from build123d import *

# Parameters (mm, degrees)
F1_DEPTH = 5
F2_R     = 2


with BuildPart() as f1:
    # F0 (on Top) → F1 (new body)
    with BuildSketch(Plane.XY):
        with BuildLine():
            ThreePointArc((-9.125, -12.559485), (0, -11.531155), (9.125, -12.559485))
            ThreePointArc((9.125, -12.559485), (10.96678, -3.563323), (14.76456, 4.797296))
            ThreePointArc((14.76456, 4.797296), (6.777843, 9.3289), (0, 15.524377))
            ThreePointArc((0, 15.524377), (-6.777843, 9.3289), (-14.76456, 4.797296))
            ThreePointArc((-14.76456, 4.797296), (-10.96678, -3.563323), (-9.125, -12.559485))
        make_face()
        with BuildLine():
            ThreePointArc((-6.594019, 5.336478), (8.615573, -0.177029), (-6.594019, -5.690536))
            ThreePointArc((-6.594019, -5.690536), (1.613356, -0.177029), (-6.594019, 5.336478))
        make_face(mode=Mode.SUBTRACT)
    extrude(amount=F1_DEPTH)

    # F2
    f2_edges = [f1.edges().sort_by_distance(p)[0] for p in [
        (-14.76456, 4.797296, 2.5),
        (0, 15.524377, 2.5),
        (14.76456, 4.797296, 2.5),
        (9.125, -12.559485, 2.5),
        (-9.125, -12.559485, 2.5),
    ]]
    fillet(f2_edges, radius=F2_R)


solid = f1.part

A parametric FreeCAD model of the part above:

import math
import FreeCAD as App
import Part
import Sketcher


def edges_at(feature, points):
    """Names of the edges that pass closest to the given points."""
    edges = feature.Shape.Edges
    near = lambda p: min(range(len(edges)), key=lambda i: edges[i].distToShape(Part.Vertex(*p))[0])
    return sorted({f"Edge{near(p) + 1}" for p in points})

doc = App.newDocument("Part")
body = doc.addObject("PartDesign::Body", "Body")

sketch1 = body.newObject("Sketcher::SketchObject", "Sketch")
sketch1.AttachmentSupport = (doc.getObject("XY_Plane"), [""])
sketch1.MapMode = "FlatFace"
sketch1.addGeometry([
    Part.ArcOfCircle(Part.Circle(App.Vector(0, -53, 0), App.Vector(0, 0, 1), 41), math.radians(77), math.radians(103)),
    Part.ArcOfCircle(Part.Circle(App.Vector(50, -16, 0), App.Vector(0, 0, 1), 41), math.radians(149), math.radians(175)),
    Part.ArcOfCircle(Part.Circle(App.Vector(31, 42, 0), App.Vector(0, 0, 1), 41), math.radians(-139), math.radians(-113)),
    Part.ArcOfCircle(Part.Circle(App.Vector(-31, 42, 0), App.Vector(0, 0, 1), 41), math.radians(-67), math.radians(-41)),
    Part.ArcOfCircle(Part.Circle(App.Vector(-50, -16, 0), App.Vector(0, 0, 1), 41), math.radians(5), math.radians(31)),
    Part.ArcOfCircle(Part.Circle(App.Vector(-4, 0, 0), App.Vector(0, 0, 1), 6), math.radians(-112), math.radians(112)),
    Part.ArcOfCircle(Part.Circle(App.Vector(0, 0, 0), App.Vector(0, 0, 1), 9), math.radians(-140), math.radians(140)),
], False)
sketch1.addConstraint([
    Sketcher.Constraint("Coincident", 0, 1, 1, 2),
    Sketcher.Constraint("Coincident", 1, 1, 2, 2),
    Sketcher.Constraint("Coincident", 2, 1, 3, 2),
    Sketcher.Constraint("Coincident", 3, 1, 4, 2),
    Sketcher.Constraint("Coincident", 4, 1, 0, 2),
    Sketcher.Constraint("Coincident", 5, 1, 6, 1),
    Sketcher.Constraint("Coincident", 6, 2, 5, 2),
    Sketcher.Constraint("Equal", 2, 3),
    Sketcher.Constraint("Equal", 1, 4),
    Sketcher.Constraint("Symmetric", 2, 3, 3, 3, -2),
    Sketcher.Constraint("Symmetric", 1, 3, 4, 3, -2),
    Sketcher.Constraint("PointOnObject", 0, 3, -2),
    Sketcher.Constraint("Horizontal", 5, 3, 6, 3),
    Sketcher.Constraint("Radius", 1, 41.000009),
    Sketcher.Constraint("DistanceX", 4, 1, 0, 1, 18.25),
    Sketcher.Constraint("Radius", 0, 41.000013),
    Sketcher.Constraint("Radius", 2, 41.000016),
    Sketcher.Constraint("Radius", 5, 5.955605),
    Sketcher.Constraint("Radius", 6, 8.604125),
    Sketcher.Constraint("DistanceX", 3, 3, 5, 3, 26.534799),
    Sketcher.Constraint("DistanceX", 6, 3, 2, 3, 30.8656),
    Sketcher.Constraint("DistanceY", 6, 2, 2, 1, 10.187899),
    Sketcher.Constraint("DistanceY", 0, 3, -1, 1, 52.531168),
    Sketcher.Constraint("DistanceX", -1, 1, 2, 3, 30.877048),
    Sketcher.Constraint("DistanceY", -1, 1, 2, 3, 42.49861),
    Sketcher.Constraint("DistanceX", -1, 1, 1, 1, 14.76456),
])
pad1 = body.newObject("PartDesign::Pad", "Pad")
pad1.Profile = sketch1
pad1.Length = 5
doc.recompute()

fillet = body.newObject("PartDesign::Fillet", "Fillet")
fillet.Base = (pad1, edges_at(pad1, [
    (-14.765, 4.797, 2.5),
    (0, 15.524, 2.5),
    (14.765, 4.797, 2.5),
    (9.125, -12.559, 2.5),
    (-9.125, -12.559, 2.5),
]))
fillet.Radius = 2

doc.recompute()
